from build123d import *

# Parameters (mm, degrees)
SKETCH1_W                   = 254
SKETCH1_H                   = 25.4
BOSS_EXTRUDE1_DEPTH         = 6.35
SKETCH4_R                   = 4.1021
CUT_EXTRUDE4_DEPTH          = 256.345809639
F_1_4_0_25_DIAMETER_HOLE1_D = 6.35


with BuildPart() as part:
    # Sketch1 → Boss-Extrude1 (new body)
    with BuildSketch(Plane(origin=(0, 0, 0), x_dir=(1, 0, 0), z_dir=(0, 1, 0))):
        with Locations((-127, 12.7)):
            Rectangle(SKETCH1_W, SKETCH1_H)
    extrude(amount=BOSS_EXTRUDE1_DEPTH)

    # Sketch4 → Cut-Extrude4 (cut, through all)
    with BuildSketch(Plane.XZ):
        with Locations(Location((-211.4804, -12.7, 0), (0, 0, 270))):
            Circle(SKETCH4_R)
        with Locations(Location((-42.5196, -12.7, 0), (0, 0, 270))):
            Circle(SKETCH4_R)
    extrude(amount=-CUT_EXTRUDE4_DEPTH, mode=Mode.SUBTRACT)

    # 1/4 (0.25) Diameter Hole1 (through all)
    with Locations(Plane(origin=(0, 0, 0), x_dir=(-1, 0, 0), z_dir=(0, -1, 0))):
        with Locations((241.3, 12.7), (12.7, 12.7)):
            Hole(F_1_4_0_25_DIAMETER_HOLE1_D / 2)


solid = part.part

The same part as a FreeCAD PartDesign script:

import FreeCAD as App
import Part
import Sketcher
from FreeCAD import Vector
Q = App.Units.Quantity


def add_polygon(sketch, points):
    """Adds a closed chain of lines whose ends are joined by coincident constraints."""
    first, n = sketch.GeometryCount, len(points)
    for a, b in zip(points, points[1:] + points[:1]):
        sketch.addGeometry(Part.LineSegment(App.Vector(*a, 0), App.Vector(*b, 0)), False)
    for i in range(n):
        sketch.addConstraint(Sketcher.Constraint("Coincident", first + i, 2, first + (i + 1) % n, 1))

doc = App.newDocument("Part")
body = doc.addObject("PartDesign::Body", "Body")

# Sketch on XZ plane
sketch1 = body.newObject("Sketcher::SketchObject", "Sketch")
sketch1.AttachmentSupport = (doc.getObject("XZ_Plane"), [""])
sketch1.MapMode = "FlatFace"
add_polygon(sketch1, [(-254, -25.4), (-254, 0), (0, 0), (0, -25.4)])  # lines 0-3
sketch1.addConstraint([
    Sketcher.Constraint("Vertical", 0),
    Sketcher.Constraint("Horizontal", 1),
    Sketcher.Constraint("Vertical", 2),
    Sketcher.Constraint("Horizontal", 3),
    Sketcher.Constraint("Coincident", 1, 2, -1, 1),
    Sketcher.Constraint("DistanceX", 1, 1, 1, 2, Q("10 in")),
    Sketcher.Constraint("DistanceY", 0, 1, 0, 2, Q("1 in")),
])
pad1 = body.newObject("PartDesign::Pad", "Pad")
pad1.Profile = sketch1
pad1.Length = Q("0.25 in")
pad1.Reversed = True

# Sketch on XZ plane
sketch2 = body.newObject("Sketcher::SketchObject", "Sketch001")
sketch2.AttachmentSupport = (doc.getObject("XZ_Plane"), [""])
sketch2.MapMode = "FlatFace"
sketch2.addGeometry([
    Part.Circle(Vector(-211.4804, -12.7, 0), Vector(0, 0, 1), 4.1021),
    Part.Circle(Vector(-42.5196, -12.7, 0), Vector(0, 0, 1), 4.1021),
], False)
sketch2.addConstraint([
    Sketcher.Constraint("Equal", 0, 1),
    Sketcher.Constraint("Horizontal", 0, 3, 1, 3),
    Sketcher.Constraint("Diameter", 0, Q("0.323 in")),
    Sketcher.Constraint("DistanceY", 0, 3, -1, 1, Q("0.5 in")),
    Sketcher.Constraint("DistanceX", 0, 3, -1, 1, Q("8.326 in")),
    Sketcher.Constraint("DistanceX", 1, 3, -1, 1, Q("1.674 in")),
])
pocket1 = body.newObject("PartDesign::Pocket", "Pocket")
pocket1.Profile = sketch2
pocket1.Type = "ThroughAll"

# Sketch on XZ plane
sketch3 = body.newObject("Sketcher::SketchObject", "Sketch002")
sketch3.AttachmentSupport = (doc.getObject("XZ_Plane"), [""])
sketch3.MapMode = "FlatFace"
sketch3.addGeometry([
    Part.Circle(Vector(-241.3, -12.7, 0), Vector(0, 0, 1), 3.175),
    Part.Circle(Vector(-12.7, -12.7, 0), Vector(0, 0, 1), 3.175),
], False)
sketch3.addConstraint([
    Sketcher.Constraint("Equal", 0, 1),
    Sketcher.Constraint("Horizontal", 0, 3, 1, 3),
    Sketcher.Constraint("Diameter", 0, Q("0.25 in")),
    Sketcher.Constraint("DistanceX", 0, 3, 1, 3, Q("9 in")),
    Sketcher.Constraint("DistanceX", 0, 3, -1, 1, Q("9.5 in")),
    Sketcher.Constraint("DistanceY", 0, 3, -1, 1, Q("0.5 in")),
])
doc.recompute()
hole = body.newObject("PartDesign::Hole", "Hole")
hole.Profile = sketch3
hole.ThreadType = "None"
hole.Diameter = Q("0.25 in")
hole.DepthType = "ThroughAll"

doc.recompute()
